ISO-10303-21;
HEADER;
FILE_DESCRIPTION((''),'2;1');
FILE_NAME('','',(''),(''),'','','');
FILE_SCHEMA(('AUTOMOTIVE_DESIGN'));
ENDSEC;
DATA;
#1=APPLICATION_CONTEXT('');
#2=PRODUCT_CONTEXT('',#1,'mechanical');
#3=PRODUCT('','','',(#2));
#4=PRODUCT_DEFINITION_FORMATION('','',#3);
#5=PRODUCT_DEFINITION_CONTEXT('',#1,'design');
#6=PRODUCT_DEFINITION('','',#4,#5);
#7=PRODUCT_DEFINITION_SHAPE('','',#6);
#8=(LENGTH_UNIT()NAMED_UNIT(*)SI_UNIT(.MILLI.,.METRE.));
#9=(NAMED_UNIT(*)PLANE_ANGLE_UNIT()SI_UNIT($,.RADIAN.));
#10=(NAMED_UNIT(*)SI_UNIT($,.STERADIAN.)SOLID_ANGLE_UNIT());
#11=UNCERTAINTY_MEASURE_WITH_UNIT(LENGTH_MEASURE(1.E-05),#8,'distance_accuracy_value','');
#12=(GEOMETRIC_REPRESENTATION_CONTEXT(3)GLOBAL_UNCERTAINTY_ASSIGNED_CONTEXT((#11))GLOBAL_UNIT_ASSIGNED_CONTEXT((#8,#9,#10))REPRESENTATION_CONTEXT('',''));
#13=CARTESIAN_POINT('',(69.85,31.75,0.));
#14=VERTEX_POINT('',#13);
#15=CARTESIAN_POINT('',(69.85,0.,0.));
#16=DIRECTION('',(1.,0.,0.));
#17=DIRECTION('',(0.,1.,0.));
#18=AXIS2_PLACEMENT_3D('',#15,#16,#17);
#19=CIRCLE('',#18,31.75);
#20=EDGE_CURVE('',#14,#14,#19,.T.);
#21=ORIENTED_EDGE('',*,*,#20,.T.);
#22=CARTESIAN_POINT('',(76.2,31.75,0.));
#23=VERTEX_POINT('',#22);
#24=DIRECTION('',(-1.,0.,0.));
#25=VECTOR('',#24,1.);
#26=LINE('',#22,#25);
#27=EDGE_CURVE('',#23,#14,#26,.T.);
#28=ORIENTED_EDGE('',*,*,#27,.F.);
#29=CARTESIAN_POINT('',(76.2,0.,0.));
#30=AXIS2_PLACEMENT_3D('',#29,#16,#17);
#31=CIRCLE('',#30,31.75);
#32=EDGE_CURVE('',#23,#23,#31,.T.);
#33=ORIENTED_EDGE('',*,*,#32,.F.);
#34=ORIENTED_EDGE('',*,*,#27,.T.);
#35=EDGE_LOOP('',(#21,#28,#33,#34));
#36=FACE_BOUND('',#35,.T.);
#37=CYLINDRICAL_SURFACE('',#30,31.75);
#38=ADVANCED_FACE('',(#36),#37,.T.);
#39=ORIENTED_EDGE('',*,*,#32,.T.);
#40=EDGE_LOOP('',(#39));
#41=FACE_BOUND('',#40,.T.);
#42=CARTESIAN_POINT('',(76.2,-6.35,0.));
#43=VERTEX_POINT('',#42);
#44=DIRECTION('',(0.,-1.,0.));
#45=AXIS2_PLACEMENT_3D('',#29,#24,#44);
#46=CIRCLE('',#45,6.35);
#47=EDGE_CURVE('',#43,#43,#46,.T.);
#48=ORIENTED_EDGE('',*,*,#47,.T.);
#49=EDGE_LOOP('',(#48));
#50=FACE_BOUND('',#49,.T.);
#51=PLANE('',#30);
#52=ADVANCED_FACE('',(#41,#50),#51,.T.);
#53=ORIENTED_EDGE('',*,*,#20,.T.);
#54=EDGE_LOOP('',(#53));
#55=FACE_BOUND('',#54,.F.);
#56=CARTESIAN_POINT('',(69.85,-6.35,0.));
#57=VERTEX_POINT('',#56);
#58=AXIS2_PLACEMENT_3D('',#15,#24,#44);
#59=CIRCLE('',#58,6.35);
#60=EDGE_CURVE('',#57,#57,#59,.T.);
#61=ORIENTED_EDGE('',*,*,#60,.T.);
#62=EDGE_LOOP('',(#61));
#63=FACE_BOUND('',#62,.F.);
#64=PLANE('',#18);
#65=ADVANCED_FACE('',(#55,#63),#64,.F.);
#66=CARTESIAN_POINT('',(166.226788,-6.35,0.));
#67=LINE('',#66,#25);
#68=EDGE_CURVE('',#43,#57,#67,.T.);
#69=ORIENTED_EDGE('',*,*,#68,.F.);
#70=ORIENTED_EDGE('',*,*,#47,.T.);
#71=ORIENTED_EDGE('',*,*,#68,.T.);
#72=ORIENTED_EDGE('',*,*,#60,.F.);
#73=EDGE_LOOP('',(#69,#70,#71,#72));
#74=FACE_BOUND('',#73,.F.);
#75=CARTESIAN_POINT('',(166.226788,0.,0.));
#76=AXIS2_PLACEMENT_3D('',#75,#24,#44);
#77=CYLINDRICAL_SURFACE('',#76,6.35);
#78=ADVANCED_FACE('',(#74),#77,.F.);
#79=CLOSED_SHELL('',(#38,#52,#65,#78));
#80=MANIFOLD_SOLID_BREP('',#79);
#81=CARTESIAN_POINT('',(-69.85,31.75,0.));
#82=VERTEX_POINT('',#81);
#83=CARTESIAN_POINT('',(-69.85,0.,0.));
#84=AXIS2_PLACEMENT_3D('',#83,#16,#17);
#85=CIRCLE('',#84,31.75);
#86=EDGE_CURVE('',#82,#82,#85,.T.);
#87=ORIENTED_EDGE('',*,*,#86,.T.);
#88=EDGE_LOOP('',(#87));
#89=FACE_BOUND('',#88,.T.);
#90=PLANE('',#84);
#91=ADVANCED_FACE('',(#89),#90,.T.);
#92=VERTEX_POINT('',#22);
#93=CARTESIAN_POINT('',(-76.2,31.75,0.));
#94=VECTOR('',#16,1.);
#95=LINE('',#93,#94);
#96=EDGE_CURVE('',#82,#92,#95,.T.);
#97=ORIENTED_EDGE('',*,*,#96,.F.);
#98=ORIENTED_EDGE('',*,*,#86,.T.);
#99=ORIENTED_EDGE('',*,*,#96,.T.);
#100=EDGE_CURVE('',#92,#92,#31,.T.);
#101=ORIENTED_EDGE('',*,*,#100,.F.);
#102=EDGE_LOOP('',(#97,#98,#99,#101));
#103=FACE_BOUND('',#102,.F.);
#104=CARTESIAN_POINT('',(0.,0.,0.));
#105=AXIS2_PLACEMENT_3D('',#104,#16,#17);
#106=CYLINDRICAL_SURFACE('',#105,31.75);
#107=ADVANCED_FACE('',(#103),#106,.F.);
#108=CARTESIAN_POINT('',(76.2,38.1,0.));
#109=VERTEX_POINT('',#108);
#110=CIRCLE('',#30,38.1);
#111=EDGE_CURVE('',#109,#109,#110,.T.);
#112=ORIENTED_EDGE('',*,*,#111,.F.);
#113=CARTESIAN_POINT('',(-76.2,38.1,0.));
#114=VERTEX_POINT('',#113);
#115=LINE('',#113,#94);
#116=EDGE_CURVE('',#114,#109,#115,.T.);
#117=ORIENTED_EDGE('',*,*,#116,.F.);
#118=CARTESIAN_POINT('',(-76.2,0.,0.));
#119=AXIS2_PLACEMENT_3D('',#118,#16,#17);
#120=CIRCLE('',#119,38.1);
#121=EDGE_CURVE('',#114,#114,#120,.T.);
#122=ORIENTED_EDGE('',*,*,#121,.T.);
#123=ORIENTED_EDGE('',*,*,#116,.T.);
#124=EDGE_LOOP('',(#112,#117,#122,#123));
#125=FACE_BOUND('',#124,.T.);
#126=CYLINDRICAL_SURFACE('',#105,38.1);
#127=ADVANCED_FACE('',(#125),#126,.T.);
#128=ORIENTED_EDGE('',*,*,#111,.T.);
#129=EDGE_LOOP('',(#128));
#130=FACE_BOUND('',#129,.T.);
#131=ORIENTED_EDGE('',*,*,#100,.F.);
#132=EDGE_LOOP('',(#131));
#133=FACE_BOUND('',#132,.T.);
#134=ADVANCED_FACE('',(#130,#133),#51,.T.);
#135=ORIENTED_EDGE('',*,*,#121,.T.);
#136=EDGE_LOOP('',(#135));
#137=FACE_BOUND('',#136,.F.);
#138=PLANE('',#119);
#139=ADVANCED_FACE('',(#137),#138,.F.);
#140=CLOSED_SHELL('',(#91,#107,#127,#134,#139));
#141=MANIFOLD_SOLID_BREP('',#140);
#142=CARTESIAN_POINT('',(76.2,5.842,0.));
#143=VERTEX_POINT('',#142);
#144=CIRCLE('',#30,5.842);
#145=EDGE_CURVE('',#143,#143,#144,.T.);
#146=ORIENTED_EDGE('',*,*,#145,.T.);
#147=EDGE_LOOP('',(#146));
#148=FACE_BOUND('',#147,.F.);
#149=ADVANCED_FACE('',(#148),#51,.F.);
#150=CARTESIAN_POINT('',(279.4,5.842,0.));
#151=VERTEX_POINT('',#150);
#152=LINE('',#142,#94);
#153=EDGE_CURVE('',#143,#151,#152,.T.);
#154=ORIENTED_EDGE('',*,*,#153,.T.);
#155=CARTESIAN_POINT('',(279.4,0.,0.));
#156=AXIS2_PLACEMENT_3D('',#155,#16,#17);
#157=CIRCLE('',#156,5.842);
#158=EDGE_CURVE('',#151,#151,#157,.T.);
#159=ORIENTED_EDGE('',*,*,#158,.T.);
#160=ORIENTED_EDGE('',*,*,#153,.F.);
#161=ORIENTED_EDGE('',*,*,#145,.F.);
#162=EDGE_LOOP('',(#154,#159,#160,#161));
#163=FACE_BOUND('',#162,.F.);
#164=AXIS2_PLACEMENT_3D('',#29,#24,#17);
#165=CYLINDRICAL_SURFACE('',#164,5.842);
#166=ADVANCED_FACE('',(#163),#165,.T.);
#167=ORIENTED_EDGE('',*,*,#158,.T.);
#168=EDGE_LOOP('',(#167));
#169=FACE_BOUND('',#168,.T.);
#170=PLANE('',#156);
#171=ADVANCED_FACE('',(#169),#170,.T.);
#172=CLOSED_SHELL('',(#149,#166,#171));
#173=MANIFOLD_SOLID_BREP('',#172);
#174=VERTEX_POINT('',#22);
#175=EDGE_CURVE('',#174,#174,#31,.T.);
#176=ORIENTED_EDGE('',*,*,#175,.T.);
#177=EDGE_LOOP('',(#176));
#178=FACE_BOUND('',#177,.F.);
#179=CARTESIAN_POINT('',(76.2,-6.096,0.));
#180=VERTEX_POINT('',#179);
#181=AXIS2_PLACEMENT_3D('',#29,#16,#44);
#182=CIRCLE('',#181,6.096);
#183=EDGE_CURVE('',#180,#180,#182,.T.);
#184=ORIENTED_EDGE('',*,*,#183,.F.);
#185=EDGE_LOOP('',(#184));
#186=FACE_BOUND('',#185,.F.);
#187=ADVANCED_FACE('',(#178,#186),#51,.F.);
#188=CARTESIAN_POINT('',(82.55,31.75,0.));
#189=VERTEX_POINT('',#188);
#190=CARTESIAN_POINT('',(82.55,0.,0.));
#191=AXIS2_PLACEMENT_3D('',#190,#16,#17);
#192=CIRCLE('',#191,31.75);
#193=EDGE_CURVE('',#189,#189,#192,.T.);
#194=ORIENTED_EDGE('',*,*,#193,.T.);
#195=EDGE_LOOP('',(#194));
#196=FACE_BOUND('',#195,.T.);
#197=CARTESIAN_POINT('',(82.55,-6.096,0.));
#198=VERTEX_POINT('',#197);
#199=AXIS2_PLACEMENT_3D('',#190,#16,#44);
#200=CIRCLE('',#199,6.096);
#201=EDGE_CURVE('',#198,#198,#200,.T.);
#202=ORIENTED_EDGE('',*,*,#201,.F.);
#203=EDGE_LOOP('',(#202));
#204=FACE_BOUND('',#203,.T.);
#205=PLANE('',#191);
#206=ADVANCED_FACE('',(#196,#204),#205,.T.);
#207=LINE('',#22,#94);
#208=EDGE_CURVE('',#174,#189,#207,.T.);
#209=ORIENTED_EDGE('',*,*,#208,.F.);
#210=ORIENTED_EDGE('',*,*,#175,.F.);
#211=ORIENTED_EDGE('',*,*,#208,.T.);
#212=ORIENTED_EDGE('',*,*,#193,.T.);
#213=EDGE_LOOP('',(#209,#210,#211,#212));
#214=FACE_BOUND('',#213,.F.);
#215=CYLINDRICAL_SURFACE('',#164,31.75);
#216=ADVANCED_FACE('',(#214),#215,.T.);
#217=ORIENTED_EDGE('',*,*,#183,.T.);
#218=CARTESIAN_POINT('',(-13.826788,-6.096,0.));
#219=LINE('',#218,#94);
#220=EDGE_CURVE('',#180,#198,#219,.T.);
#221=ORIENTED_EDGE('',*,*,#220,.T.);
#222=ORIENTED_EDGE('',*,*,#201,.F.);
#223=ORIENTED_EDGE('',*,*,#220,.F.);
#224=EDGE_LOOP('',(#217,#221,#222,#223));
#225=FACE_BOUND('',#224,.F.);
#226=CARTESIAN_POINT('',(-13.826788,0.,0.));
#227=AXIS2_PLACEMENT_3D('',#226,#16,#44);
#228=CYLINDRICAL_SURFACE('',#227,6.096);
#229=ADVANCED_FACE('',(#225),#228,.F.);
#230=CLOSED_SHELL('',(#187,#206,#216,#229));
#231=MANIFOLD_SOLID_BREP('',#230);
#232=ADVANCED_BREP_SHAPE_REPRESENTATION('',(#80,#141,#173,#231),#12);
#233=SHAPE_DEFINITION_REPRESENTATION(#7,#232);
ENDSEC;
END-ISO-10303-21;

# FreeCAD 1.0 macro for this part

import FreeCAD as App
import Part
import Sketcher
from FreeCAD import Vector
Q = App.Units.Quantity


def faces_at(feature, points):
    """Names of the faces that lie closest to the given points."""
    faces = feature.Shape.Faces
    near = lambda p: min(range(len(faces)), key=lambda i: faces[i].distToShape(Part.Vertex(*p))[0])
    return sorted({f"Face{near(p) + 1}" for p in points})

doc = App.newDocument("Part")
body = doc.addObject("PartDesign::Body", "Body")

# Sketch on YZ plane
sketch1 = body.newObject("Sketcher::SketchObject", "Sketch")
sketch1.AttachmentSupport = (doc.getObject("YZ_Plane"), [""])
sketch1.MapMode = "FlatFace"
sketch1.addGeometry(Part.Circle(Vector(0, 0, 0), Vector(0, 0, 1), 38.1), False)
sketch1.addConstraint(Sketcher.Constraint("Coincident", 0, 3, -1, 1))
sketch1.addConstraint(Sketcher.Constraint("Diameter", 0, Q("3 in")))
pad1 = body.newObject("PartDesign::Pad", "Pad")
pad1.Profile = sketch1
pad1.Length = Q("6 in")
pad1.Midplane = True
doc.recompute()

thickness = body.newObject("PartDesign::Thickness", "Thickness")
thickness.Base = (pad1, faces_at(pad1, [(76.2, 0, 0)]))
thickness.Value = Q("0.25 in")
thickness.Reversed = True
thickness.Join = "Arc"
body2 = doc.addObject("PartDesign::Body", "Body001")

# Sketch on YZ plane
sketch2 = body2.newObject("Sketcher::SketchObject", "Sketch001")
sketch2.AttachmentSupport = (doc.getObject("YZ_Plane001"), [""])
sketch2.MapMode = "FlatFace"
sketch2.AttachmentOffset = App.Placement(Vector(0, 0, 3 * 25.4), App.Rotation())
sketch2.addGeometry(Part.Circle(Vector(0, 0, 0), Vector(0, 0, 1), 5.842), False)
sketch2.addConstraint(Sketcher.Constraint("Coincident", 0, 3, -1, 1))
sketch2.addConstraint(Sketcher.Constraint("Diameter", 0, Q("0.46 in")))
pad2 = body2.newObject("PartDesign::Pad", "Pad001")
pad2.Profile = sketch2
pad2.Length = Q("8 in")
body3 = doc.addObject("PartDesign::Body", "Body002")

# Sketch on YZ plane
sketch3 = body3.newObject("Sketcher::SketchObject", "Sketch002")
sketch3.AttachmentSupport = (doc.getObject("YZ_Plane002"), [""])
sketch3.MapMode = "FlatFace"
sketch3.AttachmentOffset = App.Placement(Vector(0, 0, 3 * 25.4), App.Rotation())
sketch3.addGeometry(Part.Circle(Vector(0, 0, 0), Vector(0, 0, 1), 31.75), False)
sketch3.addConstraint(Sketcher.Constraint("Coincident", 0, 3, -1, 1))
sketch3.addConstraint(Sketcher.Constraint("Diameter", 0, Q("2.5 in")))
pad3 = body3.newObject("PartDesign::Pad", "Pad002")
pad3.Profile = sketch3
pad3.Length = Q("0.25 in")

# Sketch on YZ plane
sketch4 = body3.newObject("Sketcher::SketchObject", "Sketch003")
sketch4.AttachmentSupport = (doc.getObject("YZ_Plane002"), [""])
sketch4.MapMode = "FlatFace"
sketch4.AttachmentOffset = App.Placement(Vector(0, 0, 3 * 25.4), App.Rotation())
sketch4.addGeometry(Part.Circle(Vector(0, 0, 0), Vector(0, 0, 1), 6.096), False)
sketch4.addConstraint(Sketcher.Constraint("Coincident", 0, 3, -1, 1))
sketch4.addConstraint(Sketcher.Constraint("Diameter", 0, Q("0.48 in")))
doc.recompute()
hole = body3.newObject("PartDesign::Hole", "Hole")
hole.Profile = sketch4
hole.ThreadType = "None"
hole.Diameter = Q("0.48 in")
hole.DepthType = "ThroughAll"
hole.Reversed = True
body4 = doc.addObject("PartDesign::Body", "Body003")

# Sketch on YZ plane
sketch5 = body4.newObject("Sketcher::SketchObject", "Sketch004")
sketch5.AttachmentSupport = (doc.getObject("YZ_Plane003"), [""])
sketch5.MapMode = "FlatFace"
sketch5.AttachmentOffset = App.Placement(Vector(0, 0, 3 * 25.4), App.Rotation())
sketch5.addGeometry(Part.Circle(Vector(0, 0, 0), Vector(0, 0, 1), 31.75), False)
sketch5.addConstraint(Sketcher.Constraint("Coincident", 0, 3, -1, 1))
sketch5.addConstraint(Sketcher.Constraint("Diameter", 0, Q("2.5 in")))
pad4 = body4.newObject("PartDesign::Pad", "Pad003")
pad4.Profile = sketch5
pad4.Length = Q("0.25 in")
pad4.Reversed = True

# Sketch on YZ plane
sketch6 = body4.newObject("Sketcher::SketchObject", "Sketch005")
sketch6.AttachmentSupport = (doc.getObject("YZ_Plane003"), [""])
sketch6.MapMode = "FlatFace"
sketch6.AttachmentOffset = App.Placement(Vector(0, 0, 3 * 25.4), App.Rotation())
sketch6.addGeometry(Part.Circle(Vector(0, 0, 0), Vector(0, 0, 1), 6.35), False)
sketch6.addConstraint(Sketcher.Constraint("Coincident", 0, 3, -1, 1))
sketch6.addConstraint(Sketcher.Constraint("Diameter", 0, Q("0.5 in")))
doc.recompute()
hole2 = body4.newObject("PartDesign::Hole", "Hole001")
hole2.Profile = sketch6
hole2.ThreadType = "None"
hole2.Diameter = Q("0.5 in")
hole2.DepthType = "ThroughAll"

doc.recompute()
